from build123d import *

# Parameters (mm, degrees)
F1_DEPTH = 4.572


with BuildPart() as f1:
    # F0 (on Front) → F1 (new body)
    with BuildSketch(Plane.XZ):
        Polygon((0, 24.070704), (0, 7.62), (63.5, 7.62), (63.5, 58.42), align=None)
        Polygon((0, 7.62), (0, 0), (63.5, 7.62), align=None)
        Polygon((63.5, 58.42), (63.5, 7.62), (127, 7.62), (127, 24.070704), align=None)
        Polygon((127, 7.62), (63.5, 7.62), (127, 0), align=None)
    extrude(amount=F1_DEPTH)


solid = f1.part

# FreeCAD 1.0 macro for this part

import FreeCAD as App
import Part
import Sketcher
Q = App.Units.Quantity

doc = App.newDocument("Part")
params = doc.addObject("Spreadsheet::Sheet", "Params")
for row, (alias, value) in enumerate([
    ("pad1_length", "0.18 in"),
], start=1):
    params.set(f"A{row}", alias)
    params.set(f"B{row}", "=" + value)
    params.setAlias(f"B{row}", alias)

body = doc.addObject("PartDesign::Body", "Body")

sketch1 = body.newObject("Sketcher::SketchObject", "Sketch")
sketch1.AttachmentSupport = (doc.getObject("XZ_Plane"), [""])
sketch1.MapMode = "FlatFace"
sketch1.addGeometry([
    Part.LineSegment(App.Vector(0, 24, 0), App.Vector(0, 0, 0)),
    Part.LineSegment(App.Vector(0, 0, 0), App.Vector(64, 8, 0)),
    Part.LineSegment(App.Vector(64, 8, 0), App.Vector(127, 0, 0)),
    Part.LineSegment(App.Vector(127, 0, 0), App.Vector(127, 24, 0)),
    Part.LineSegment(App.Vector(127, 24, 0), App.Vector(64, 58, 0)),
    Part.LineSegment(App.Vector(64, 58, 0), App.Vector(0, 24, 0)),
], False)
sketch1.addConstraint([
    Sketcher.Constraint("Coincident", 0, 2, 1, 1),
    Sketcher.Constraint("Coincident", 1, 2, 2, 1),
    Sketcher.Constraint("Coincident", 2, 2, 3, 1),
    Sketcher.Constraint("Coincident", 3, 2, 4, 1),
    Sketcher.Constraint("Coincident", 4, 2, 5, 1),
    Sketcher.Constraint("Coincident", 5, 2, 0, 1),
    Sketcher.Constraint("Vertical", 0),
    Sketcher.Constraint("Vertical", 3),
    Sketcher.Constraint("Coincident", 0, 2, -1, 1),
    Sketcher.Constraint("PointOnObject", 2, 2, -1),
    Sketcher.Constraint("Horizontal", 3, 2, 5, 2),
    Sketcher.Constraint("Vertical", 1, 2, 4, 2),
    Sketcher.Constraint("Equal", 1, 2),
    Sketcher.Constraint("DistanceX", -1, 1, 2, 2, Q("5 in")),
    Sketcher.Constraint("DistanceY", 1, 2, 4, 2, Q("2 in")),
    Sketcher.Constraint("DistanceY", -1, 1, 1, 2, Q("0.3 in")),
    Sketcher.Constraint("DistanceY", 0, 2, 0, 1, Q("24.070704 mm")),
])
pad1 = body.newObject("PartDesign::Pad", "Pad")
pad1.Profile = sketch1
pad1.setExpression("Length", "Params.pad1_length")

doc.recompute()
